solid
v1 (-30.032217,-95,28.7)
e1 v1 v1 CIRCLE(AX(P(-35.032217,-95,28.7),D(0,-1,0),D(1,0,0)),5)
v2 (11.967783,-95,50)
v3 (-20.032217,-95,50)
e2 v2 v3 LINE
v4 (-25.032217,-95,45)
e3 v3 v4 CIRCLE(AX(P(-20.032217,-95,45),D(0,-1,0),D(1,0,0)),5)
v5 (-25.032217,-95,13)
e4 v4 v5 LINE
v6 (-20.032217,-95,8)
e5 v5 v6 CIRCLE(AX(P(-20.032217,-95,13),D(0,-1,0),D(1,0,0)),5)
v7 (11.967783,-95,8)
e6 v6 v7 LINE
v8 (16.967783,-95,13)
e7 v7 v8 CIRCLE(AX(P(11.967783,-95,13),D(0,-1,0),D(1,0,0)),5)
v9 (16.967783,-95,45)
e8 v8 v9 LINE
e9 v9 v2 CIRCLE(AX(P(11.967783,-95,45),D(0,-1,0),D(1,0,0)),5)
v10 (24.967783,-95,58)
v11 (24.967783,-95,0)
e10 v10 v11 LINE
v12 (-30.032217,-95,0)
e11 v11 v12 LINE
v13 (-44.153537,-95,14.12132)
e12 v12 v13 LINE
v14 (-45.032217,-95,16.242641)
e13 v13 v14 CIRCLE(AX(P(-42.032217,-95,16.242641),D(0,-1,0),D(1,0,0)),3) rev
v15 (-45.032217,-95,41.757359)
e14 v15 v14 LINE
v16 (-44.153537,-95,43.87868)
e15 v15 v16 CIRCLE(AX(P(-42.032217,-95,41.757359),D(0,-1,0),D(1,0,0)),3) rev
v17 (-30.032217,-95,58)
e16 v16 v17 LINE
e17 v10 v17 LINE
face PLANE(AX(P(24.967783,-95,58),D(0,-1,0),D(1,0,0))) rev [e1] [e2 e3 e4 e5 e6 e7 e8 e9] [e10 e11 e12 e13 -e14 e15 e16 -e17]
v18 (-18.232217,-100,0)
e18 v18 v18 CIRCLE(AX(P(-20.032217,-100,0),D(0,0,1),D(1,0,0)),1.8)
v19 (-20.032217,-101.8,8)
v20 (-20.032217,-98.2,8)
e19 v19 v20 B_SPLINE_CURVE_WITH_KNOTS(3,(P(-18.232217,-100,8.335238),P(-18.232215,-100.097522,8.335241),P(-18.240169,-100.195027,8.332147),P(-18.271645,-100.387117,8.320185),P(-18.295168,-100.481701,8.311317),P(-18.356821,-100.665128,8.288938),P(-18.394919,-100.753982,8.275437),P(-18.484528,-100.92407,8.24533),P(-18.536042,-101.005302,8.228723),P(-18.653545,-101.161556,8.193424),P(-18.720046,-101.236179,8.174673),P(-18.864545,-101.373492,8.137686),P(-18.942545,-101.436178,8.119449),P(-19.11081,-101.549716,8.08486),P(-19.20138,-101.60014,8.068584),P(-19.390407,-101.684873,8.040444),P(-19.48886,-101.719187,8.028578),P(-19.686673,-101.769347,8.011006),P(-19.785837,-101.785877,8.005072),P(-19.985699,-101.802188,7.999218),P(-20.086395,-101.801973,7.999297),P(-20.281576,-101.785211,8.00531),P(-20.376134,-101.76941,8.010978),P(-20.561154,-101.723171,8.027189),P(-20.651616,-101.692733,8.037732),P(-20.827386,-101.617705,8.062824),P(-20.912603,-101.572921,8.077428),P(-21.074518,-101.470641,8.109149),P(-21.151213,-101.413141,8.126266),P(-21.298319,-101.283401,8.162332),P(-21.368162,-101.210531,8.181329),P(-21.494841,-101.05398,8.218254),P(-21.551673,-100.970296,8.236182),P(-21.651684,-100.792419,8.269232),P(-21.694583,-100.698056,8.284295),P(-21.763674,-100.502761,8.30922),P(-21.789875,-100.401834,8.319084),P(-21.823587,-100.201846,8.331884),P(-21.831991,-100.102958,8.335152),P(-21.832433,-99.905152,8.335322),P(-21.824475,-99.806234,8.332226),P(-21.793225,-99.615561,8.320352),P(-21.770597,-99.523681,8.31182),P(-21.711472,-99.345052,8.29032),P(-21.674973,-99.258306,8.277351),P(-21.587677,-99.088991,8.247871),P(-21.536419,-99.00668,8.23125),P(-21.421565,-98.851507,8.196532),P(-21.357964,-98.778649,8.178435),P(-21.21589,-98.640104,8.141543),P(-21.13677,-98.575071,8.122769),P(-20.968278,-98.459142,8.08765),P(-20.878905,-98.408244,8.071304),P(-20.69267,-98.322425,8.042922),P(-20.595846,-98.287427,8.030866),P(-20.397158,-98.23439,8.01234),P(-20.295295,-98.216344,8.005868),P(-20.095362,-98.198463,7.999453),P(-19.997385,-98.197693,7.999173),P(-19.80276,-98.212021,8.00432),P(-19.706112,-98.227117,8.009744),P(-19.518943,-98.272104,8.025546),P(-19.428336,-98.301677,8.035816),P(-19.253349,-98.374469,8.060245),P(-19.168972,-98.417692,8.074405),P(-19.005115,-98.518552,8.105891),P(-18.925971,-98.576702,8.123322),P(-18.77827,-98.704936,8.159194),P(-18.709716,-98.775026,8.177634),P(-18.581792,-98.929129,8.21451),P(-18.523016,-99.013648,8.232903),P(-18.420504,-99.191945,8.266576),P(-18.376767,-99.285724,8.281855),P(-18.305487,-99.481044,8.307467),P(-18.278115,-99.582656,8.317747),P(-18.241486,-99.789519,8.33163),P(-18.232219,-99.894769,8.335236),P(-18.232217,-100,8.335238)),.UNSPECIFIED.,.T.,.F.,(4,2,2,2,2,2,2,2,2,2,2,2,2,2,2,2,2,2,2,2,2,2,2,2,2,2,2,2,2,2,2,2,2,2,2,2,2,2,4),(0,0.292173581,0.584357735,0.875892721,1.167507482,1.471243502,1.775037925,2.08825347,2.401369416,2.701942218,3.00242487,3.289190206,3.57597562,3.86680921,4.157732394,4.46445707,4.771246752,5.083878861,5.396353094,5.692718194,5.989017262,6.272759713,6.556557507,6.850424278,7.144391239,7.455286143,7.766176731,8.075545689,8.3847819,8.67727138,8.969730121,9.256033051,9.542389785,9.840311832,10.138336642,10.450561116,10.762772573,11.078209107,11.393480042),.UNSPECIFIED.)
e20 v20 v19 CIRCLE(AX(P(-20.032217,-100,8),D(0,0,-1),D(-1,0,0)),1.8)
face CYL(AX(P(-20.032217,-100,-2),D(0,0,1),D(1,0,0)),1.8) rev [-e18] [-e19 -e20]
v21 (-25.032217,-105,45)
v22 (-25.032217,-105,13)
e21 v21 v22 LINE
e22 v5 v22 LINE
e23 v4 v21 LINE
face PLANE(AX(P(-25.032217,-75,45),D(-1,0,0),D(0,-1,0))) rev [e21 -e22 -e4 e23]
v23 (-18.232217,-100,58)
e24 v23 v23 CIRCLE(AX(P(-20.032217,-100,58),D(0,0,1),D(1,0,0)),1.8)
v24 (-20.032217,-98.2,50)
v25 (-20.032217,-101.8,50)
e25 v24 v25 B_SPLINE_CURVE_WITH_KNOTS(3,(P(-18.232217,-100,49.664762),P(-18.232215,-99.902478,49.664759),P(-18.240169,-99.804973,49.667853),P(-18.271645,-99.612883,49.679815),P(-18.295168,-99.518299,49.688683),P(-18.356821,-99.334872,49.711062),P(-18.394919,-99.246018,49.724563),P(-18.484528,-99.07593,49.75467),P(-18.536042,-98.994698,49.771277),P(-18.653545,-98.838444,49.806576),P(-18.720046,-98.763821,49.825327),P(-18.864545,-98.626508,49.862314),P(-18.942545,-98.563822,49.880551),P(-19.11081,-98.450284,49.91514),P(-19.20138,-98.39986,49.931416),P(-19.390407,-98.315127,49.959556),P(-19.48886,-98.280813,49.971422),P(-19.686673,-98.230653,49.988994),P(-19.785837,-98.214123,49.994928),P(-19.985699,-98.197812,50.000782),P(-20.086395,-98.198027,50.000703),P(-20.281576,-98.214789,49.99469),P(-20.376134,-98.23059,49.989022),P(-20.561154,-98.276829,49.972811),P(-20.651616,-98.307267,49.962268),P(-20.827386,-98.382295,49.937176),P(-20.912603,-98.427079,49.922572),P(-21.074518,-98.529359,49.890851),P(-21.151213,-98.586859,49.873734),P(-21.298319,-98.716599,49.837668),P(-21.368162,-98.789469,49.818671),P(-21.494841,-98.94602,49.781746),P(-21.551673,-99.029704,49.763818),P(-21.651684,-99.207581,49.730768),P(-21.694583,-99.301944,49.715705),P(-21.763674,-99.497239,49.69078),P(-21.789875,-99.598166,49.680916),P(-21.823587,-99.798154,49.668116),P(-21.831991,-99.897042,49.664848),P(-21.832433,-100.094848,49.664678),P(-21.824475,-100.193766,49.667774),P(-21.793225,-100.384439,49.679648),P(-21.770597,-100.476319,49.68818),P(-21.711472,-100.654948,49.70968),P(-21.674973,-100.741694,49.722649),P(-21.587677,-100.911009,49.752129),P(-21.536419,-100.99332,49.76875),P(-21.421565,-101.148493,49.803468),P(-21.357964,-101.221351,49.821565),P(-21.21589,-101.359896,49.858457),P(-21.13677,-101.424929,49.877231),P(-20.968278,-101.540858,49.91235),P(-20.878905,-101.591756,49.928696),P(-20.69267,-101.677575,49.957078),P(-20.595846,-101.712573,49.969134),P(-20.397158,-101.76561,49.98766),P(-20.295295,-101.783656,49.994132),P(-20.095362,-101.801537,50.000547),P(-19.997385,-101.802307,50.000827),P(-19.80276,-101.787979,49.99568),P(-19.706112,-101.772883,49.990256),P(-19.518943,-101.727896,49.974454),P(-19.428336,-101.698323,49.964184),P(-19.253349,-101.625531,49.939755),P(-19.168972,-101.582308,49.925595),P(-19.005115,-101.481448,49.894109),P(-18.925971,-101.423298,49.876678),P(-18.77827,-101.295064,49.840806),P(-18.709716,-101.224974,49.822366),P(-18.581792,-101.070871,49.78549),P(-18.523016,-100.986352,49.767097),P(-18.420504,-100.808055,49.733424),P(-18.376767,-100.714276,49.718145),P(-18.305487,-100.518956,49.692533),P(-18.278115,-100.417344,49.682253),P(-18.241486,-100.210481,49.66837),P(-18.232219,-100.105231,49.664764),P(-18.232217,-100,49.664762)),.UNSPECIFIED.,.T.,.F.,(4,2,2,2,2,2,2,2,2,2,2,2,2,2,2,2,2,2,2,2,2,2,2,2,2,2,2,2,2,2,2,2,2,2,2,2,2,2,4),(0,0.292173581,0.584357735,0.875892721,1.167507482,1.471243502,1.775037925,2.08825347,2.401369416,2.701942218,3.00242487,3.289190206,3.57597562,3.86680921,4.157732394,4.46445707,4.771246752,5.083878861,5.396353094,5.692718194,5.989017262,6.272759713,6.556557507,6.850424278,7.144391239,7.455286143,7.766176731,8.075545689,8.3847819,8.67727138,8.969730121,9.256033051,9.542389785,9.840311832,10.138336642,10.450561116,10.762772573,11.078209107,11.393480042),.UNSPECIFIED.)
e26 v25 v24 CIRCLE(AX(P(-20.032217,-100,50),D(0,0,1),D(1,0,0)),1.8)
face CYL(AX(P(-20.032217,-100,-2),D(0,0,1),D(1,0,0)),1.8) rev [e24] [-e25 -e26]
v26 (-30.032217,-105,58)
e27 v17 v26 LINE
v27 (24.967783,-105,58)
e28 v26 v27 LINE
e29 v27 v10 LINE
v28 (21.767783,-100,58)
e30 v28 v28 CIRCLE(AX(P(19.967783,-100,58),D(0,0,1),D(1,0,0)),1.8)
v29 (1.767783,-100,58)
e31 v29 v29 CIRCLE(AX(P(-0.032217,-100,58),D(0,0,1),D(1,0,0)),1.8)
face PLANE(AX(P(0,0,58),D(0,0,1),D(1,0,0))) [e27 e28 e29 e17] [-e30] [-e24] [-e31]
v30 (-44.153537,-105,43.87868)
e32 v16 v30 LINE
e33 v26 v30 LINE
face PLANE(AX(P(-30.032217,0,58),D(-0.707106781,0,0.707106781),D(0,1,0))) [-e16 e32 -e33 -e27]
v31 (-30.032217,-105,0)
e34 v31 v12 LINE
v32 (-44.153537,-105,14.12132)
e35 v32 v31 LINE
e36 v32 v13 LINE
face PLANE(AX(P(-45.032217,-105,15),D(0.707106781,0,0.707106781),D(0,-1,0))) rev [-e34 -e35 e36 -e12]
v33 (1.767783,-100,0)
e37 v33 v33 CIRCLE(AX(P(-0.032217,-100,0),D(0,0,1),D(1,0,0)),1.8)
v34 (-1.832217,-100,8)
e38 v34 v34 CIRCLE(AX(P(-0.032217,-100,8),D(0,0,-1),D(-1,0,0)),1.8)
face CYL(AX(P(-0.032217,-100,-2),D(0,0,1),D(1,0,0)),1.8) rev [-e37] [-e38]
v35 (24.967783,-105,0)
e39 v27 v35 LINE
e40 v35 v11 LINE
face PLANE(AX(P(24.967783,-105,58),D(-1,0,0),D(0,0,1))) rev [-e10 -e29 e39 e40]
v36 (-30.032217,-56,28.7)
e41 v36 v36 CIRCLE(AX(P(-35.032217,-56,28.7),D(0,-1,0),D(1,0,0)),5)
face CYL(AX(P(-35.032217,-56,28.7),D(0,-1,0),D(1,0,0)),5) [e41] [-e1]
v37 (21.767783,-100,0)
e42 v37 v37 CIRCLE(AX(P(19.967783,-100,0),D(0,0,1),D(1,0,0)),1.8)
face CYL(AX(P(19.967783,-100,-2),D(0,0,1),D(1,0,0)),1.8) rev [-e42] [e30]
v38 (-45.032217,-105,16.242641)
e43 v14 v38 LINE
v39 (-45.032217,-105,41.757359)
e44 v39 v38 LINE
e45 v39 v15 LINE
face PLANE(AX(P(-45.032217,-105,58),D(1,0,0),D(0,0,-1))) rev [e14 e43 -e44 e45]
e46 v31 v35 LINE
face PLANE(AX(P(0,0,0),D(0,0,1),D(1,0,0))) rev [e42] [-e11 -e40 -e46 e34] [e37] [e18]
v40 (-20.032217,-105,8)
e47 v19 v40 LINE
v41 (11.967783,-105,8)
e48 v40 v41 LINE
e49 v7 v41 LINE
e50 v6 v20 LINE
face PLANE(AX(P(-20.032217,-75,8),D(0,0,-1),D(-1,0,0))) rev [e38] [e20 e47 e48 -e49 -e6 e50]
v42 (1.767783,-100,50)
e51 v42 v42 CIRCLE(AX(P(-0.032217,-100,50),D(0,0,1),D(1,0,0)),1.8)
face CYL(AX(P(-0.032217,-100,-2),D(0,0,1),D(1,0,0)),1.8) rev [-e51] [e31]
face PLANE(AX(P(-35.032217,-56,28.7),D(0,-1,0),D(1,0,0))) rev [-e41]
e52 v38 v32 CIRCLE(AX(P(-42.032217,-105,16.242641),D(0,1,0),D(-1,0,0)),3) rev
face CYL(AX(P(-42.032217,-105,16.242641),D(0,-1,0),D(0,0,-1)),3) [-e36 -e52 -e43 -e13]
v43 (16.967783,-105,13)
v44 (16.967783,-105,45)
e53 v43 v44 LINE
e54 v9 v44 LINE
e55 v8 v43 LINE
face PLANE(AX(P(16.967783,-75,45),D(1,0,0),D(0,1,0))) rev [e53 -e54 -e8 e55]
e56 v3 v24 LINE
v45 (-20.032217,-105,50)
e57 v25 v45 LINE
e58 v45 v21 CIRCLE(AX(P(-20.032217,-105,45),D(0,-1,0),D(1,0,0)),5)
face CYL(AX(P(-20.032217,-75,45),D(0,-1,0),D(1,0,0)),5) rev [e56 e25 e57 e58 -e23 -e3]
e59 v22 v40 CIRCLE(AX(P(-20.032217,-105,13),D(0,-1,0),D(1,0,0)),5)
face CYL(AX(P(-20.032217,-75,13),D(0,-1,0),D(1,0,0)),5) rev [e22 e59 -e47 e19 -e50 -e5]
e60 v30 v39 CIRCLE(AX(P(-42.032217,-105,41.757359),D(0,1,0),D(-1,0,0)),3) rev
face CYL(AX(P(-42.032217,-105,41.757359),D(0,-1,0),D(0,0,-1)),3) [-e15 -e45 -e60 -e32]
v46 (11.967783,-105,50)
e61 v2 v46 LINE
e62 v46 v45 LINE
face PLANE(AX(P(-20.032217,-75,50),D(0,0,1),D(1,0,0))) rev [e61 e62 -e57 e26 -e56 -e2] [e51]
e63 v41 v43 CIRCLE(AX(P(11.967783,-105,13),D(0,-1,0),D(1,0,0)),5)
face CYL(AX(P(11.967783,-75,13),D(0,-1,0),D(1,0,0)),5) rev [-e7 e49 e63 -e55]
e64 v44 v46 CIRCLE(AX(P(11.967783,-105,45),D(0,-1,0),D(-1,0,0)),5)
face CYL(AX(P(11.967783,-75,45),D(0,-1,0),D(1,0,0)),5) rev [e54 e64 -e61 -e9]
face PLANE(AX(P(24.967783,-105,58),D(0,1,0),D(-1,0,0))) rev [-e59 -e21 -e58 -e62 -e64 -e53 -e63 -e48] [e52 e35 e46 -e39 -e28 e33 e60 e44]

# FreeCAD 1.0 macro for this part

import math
import FreeCAD as App
import Part
import Sketcher

V = App.Vector
Q = App.Units.Quantity


def edges_at(feature, points):
    """Names of the edges that pass closest to the given points."""
    edges = feature.Shape.Edges
    near = lambda p: min(range(len(edges)), key=lambda i: edges[i].distToShape(Part.Vertex(*p))[0])
    return sorted({f"Edge{near(p) + 1}" for p in points})

doc = App.newDocument("Part")
params = doc.addObject("Spreadsheet::Sheet", "Params")
for row, (alias, value) in enumerate([
    ("sketch1_width", "70 mm"),
    ("sketch1_height", "10 mm"),
    ("pad1_length", "58 mm"),
    ("sketch2_diameter", "10 mm"),
    ("pad2_length", "49 mm"),
    ("sketch3_radius", "5 mm"),
    ("sketch3_width", "32 mm"),
    ("pocket1_length", "30 mm"),
    ("chamfer_size", "15 mm"),
    ("fillet_radius", "3 mm"),
    ("sketch4_diameter", "3.6 mm"),
    ("pocket2_length", "60 mm"),
], start=1):
    params.set(f"A{row}", alias)
    params.set(f"B{row}", "=" + value)
    params.setAlias(f"B{row}", alias)

body = doc.addObject("PartDesign::Body", "Body")

# Sketch on XY plane
sketch1 = body.newObject("Sketcher::SketchObject", "Sketch")
sketch1.AttachmentSupport = (doc.getObject("XY_Plane"), [""])
sketch1.MapMode = "FlatFace"
sketch1.addGeometry([
    Part.LineSegment(V(-45.032217, -95, 0), V(-45.032217, -105, 0)),
    Part.LineSegment(V(-45.032217, -105, 0), V(24.967783, -105, 0)),
    Part.LineSegment(V(24.967783, -105, 0), V(24.967783, -95, 0)),
    Part.LineSegment(V(24.967783, -95, 0), V(-45.032217, -95, 0)),
], False)
sketch1.addConstraint([
    Sketcher.Constraint("Coincident", 0, 2, 1, 1),
    Sketcher.Constraint("Coincident", 1, 2, 2, 1),
    Sketcher.Constraint("Coincident", 2, 2, 3, 1),
    Sketcher.Constraint("Coincident", 3, 2, 0, 1),
    Sketcher.Constraint("Vertical", 0),
    Sketcher.Constraint("Horizontal", 1),
    Sketcher.Constraint("Vertical", 2),
    Sketcher.Constraint("Horizontal", 3),
    Sketcher.Constraint("DistanceX", 1, 1, 1, 2, Q("70 mm")),
    Sketcher.Constraint("DistanceY", 0, 2, 0, 1, Q("10 mm")),
    Sketcher.Constraint("DistanceY", 0, 2, -1, 1, Q("105 mm")),
    Sketcher.Constraint("DistanceX", 0, 2, -1, 1, Q("45.032217 mm")),
])
sketch1.setExpression("Constraints[8]", "Params.sketch1_width")
sketch1.setExpression("Constraints[9]", "Params.sketch1_height")
pad1 = body.newObject("PartDesign::Pad", "Pad")
pad1.Profile = sketch1
pad1.setExpression("Length", "Params.pad1_length")

# Sketch on XZ plane
sketch2 = body.newObject("Sketcher::SketchObject", "Sketch001")
sketch2.AttachmentSupport = (doc.getObject("XZ_Plane"), [""])
sketch2.MapMode = "FlatFace"
sketch2.AttachmentOffset = App.Placement(V(0, 0, 105), App.Rotation())
sketch2.addGeometry(Part.Circle(V(-35.032217, 28.7, 0), V(0, 0, 1), 5), False)
sketch2.addConstraint([
    Sketcher.Constraint("Diameter", 0, Q("10 mm")),
    Sketcher.Constraint("DistanceY", -1, 1, 0, 3, Q("28.7 mm")),
    Sketcher.Constraint("DistanceX", 0, 3, -1, 1, Q("35.032217 mm")),
])
sketch2.setExpression("Constraints[0]", "Params.sketch2_diameter")
pad2 = body.newObject("PartDesign::Pad", "Pad001")
pad2.Profile = sketch2
pad2.setExpression("Length", "Params.pad2_length")
pad2.Reversed = True

# Sketch on XZ plane
sketch3 = body.newObject("Sketcher::SketchObject", "Sketch002")
sketch3.AttachmentSupport = (doc.getObject("XZ_Plane"), [""])
sketch3.MapMode = "FlatFace"
sketch3.AttachmentOffset = App.Placement(V(0, 0, 105), App.Rotation())
sketch3.addGeometry([
    Part.LineSegment(V(11.967783, 50, 0), V(-20.032217, 50, 0)),  # 0
    Part.ArcOfCircle(Part.Circle(V(-20.032217, 45, 0), V(0, 0, 1), 5), math.radians(90), math.radians(180)),  # 1
    Part.LineSegment(V(-25.032217, 45, 0), V(-25.032217, 13, 0)),  # 2
    Part.ArcOfCircle(Part.Circle(V(-20.032217, 13, 0), V(0, 0, 1), 5), math.radians(180), math.radians(270)),  # 3
    Part.LineSegment(V(-20.032217, 8, 0), V(11.967783, 8, 0)),  # 4
    Part.ArcOfCircle(Part.Circle(V(11.967783, 13, 0), V(0, 0, 1), 5), math.radians(-90), math.radians(0)),  # 5
    Part.LineSegment(V(16.967783, 13, 0), V(16.967783, 45, 0)),  # 6
    Part.ArcOfCircle(Part.Circle(V(11.967783, 45, 0), V(0, 0, 1), 5), math.radians(0), math.radians(90)),  # 7
], False)
sketch3.addConstraint([
    Sketcher.Constraint("Tangent", 0, 2, 1, 1),
    Sketcher.Constraint("Tangent", 1, 2, 2, 1),
    Sketcher.Constraint("Tangent", 2, 2, 3, 1),
    Sketcher.Constraint("Tangent", 3, 2, 4, 1),
    Sketcher.Constraint("Tangent", 4, 2, 5, 1),
    Sketcher.Constraint("Tangent", 5, 2, 6, 1),
    Sketcher.Constraint("Tangent", 6, 2, 7, 1),
    Sketcher.Constraint("Tangent", 7, 2, 0, 1),
    Sketcher.Constraint("Horizontal", 0),
    Sketcher.Constraint("Vertical", 2),
    Sketcher.Constraint("Horizontal", 4),
    Sketcher.Constraint("Vertical", 6),
    Sketcher.Constraint("Equal", 1, 3),
    Sketcher.Constraint("Equal", 3, 5),
    Sketcher.Constraint("Equal", 5, 7),
    Sketcher.Constraint("Equal", 4, 2),
    Sketcher.Constraint("Radius", 1, Q("5 mm")),
    Sketcher.Constraint("DistanceX", 0, 2, 0, 1, Q("32 mm")),
    Sketcher.Constraint("DistanceY", -1, 1, 1, 3, Q("45 mm")),
    Sketcher.Constraint("DistanceX", 1, 3, -1, 1, Q("20.032217 mm")),
])
sketch3.setExpression("Constraints[16]", "Params.sketch3_radius")
sketch3.setExpression("Constraints[17]", "Params.sketch3_width")
pocket1 = body.newObject("PartDesign::Pocket", "Pocket")
pocket1.Profile = sketch3
pocket1.setExpression("Length", "Params.pocket1_length")
doc.recompute()

chamfer = body.newObject("PartDesign::Chamfer", "Chamfer")
chamfer.Base = (pocket1, edges_at(pocket1, [(-45.032, -100, 58), (-45.032, -100, 0)]))
chamfer.setExpression("Size", "Params.chamfer_size")
doc.recompute()

fillet = body.newObject("PartDesign::Fillet", "Fillet")
fillet.Base = (chamfer, edges_at(chamfer, [(-45.032, -100, 43), (-45.032, -100, 15)]))
fillet.setExpression("Radius", "Params.fillet_radius")

# Sketch on XY plane
sketch4 = body.newObject("Sketcher::SketchObject", "Sketch003")
sketch4.AttachmentSupport = (doc.getObject("XY_Plane"), [""])
sketch4.MapMode = "FlatFace"
sketch4.AttachmentOffset = App.Placement(V(0, 0, 58), App.Rotation())
sketch4.addGeometry([
    Part.Circle(V(-20.032217, -100, 0), V(0, 0, 1), 1.8),
    Part.Circle(V(-0.032217, -100, 0), V(0, 0, 1), 1.8),
    Part.Circle(V(19.967783, -100, 0), V(0, 0, 1), 1.8),
], False)
sketch4.addConstraint([
    Sketcher.Constraint("Equal", 0, 1),
    Sketcher.Constraint("Equal", 1, 2),
    Sketcher.Constraint("Horizontal", 0, 3, 1, 3),
    Sketcher.Constraint("Horizontal", 1, 3, 2, 3),
    Sketcher.Constraint("Diameter", 0, Q("3.6 mm")),
    Sketcher.Constraint("DistanceY", 0, 3, -1, 1, Q("100 mm")),
    Sketcher.Constraint("DistanceX", 0, 3, 1, 3, Q("20 mm")),
    Sketcher.Constraint("DistanceX", 1, 3, 2, 3, Q("20 mm")),
    Sketcher.Constraint("DistanceX", 0, 3, -1, 1, Q("20.032217 mm")),
])
sketch4.setExpression("Constraints[4]", "Params.sketch4_diameter")
pocket2 = body.newObject("PartDesign::Pocket", "Pocket001")
pocket2.Profile = sketch4
pocket2.setExpression("Length", "Params.pocket2_length")

doc.recompute()
